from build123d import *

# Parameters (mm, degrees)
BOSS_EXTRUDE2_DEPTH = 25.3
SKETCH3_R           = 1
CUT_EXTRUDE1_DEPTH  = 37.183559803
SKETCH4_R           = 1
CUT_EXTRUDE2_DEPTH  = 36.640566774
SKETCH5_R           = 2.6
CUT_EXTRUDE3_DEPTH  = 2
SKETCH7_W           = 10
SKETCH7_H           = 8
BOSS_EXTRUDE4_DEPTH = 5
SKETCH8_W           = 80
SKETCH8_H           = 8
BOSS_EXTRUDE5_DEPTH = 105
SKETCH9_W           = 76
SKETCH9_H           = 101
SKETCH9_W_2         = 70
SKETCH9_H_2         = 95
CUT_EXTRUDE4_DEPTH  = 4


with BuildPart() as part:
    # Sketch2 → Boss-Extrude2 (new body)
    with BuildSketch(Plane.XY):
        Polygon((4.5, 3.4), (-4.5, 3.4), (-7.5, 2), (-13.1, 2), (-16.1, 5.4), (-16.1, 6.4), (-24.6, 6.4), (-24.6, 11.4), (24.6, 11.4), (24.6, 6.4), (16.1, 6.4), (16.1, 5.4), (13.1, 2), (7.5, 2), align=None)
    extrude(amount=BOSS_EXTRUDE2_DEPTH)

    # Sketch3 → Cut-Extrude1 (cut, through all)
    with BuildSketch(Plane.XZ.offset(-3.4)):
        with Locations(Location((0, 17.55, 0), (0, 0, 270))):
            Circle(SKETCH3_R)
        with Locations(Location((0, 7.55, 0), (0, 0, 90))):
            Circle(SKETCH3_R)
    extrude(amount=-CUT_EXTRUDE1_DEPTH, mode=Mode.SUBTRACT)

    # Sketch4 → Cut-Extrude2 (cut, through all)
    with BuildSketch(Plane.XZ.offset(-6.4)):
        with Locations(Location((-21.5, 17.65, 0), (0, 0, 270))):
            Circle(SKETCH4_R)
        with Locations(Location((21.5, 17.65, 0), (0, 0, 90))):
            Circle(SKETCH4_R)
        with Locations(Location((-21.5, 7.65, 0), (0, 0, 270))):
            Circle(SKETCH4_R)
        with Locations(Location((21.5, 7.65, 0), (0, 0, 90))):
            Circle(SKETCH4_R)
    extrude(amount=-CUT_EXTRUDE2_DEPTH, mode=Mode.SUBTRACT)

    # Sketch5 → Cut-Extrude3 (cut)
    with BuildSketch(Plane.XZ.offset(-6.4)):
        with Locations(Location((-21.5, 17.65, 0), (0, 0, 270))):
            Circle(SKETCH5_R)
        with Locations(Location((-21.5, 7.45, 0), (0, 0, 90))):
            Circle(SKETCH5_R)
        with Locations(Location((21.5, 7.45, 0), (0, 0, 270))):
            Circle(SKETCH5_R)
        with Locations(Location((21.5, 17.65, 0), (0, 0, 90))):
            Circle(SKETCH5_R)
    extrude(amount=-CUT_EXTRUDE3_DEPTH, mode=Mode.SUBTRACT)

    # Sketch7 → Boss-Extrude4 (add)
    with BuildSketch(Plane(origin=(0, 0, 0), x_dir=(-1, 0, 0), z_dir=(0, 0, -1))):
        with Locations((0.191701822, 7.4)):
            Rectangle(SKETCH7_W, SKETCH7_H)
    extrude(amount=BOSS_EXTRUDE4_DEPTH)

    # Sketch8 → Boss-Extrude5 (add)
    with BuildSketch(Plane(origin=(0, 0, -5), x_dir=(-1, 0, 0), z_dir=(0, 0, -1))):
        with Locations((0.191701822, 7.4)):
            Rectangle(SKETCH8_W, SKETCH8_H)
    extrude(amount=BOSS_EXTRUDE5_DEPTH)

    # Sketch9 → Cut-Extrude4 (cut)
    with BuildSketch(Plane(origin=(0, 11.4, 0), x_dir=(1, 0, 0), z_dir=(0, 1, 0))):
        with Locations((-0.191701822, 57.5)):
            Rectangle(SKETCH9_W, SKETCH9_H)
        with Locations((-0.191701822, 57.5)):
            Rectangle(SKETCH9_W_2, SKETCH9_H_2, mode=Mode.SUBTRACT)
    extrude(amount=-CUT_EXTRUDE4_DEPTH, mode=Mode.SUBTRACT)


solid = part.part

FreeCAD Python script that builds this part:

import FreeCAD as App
import Part
import Sketcher
from FreeCAD import Vector
Q = App.Units.Quantity

doc = App.newDocument("Part")
params = doc.addObject("Spreadsheet::Sheet", "Params")
for row, (alias, value) in enumerate([
    ("sketch1_width", "9 mm"),
    ("sketch1_height", "1 mm"),
    ("sketch1_height2", "5 mm"),
    ("sketch1_width2", "5.6 mm"),
    ("sketch1_width3", "8.5 mm"),
    ("pad1_length", "25.3 mm"),
    ("sketch2_diameter", "2 mm"),
    ("sketch3_diameter", "2 mm"),
    ("sketch4_diameter", "5.2 mm"),
    ("pocket3_length", "2 mm"),
    ("sketch5_width", "10 mm"),
    ("sketch5_height", "8 mm"),
    ("pad2_length", "5 mm"),
    ("sketch6_width", "80 mm"),
    ("sketch6_height", "8 mm"),
    ("pad3_length", "105 mm"),
    ("sketch7_width", "76 mm"),
    ("sketch7_width2", "70 mm"),
    ("sketch7_height", "101 mm"),
    ("sketch7_height2", "95 mm"),
    ("pocket4_length", "4 mm"),
], start=1):
    params.set(f"A{row}", alias)
    params.set(f"B{row}", "=" + value)
    params.setAlias(f"B{row}", alias)

body = doc.addObject("PartDesign::Body", "Body")

sketch1 = body.newObject("Sketcher::SketchObject", "Sketch")
sketch1.AttachmentSupport = (doc.getObject("XY_Plane"), [""])
sketch1.MapMode = "FlatFace"
sketch1.addGeometry(Part.LineSegment(Vector(-4.5, 3.4, 0), Vector(4.5, 3.4, 0)), False)
sketch1.addGeometry(Part.LineSegment(Vector(4.5, 3.4, 0), Vector(7.5, 2, 0)), False)
sketch1.addGeometry(Part.LineSegment(Vector(7.5, 2, 0), Vector(13.1, 2, 0)), False)
sketch1.addGeometry(Part.LineSegment(Vector(13.1, 2, 0), Vector(16.1, 5.4, 0)), False)
sketch1.addGeometry(Part.LineSegment(Vector(16.1, 5.4, 0), Vector(16.1, 6.4, 0)), False)
sketch1.addGeometry(Part.LineSegment(Vector(16.1, 6.4, 0), Vector(24.6, 6.4, 0)), False)
sketch1.addGeometry(Part.LineSegment(Vector(24.6, 6.4, 0), Vector(24.6, 11.4, 0)), False)
sketch1.addGeometry(Part.LineSegment(Vector(24.6, 11.4, 0), Vector(-24.6, 11.4, 0)), False)
sketch1.addGeometry(Part.LineSegment(Vector(-24.6, 11.4, 0), Vector(-24.6, 6.4, 0)), False)
sketch1.addGeometry(Part.LineSegment(Vector(-24.6, 6.4, 0), Vector(-16.1, 6.4, 0)), False)
sketch1.addGeometry(Part.LineSegment(Vector(-16.1, 6.4, 0), Vector(-16.1, 5.4, 0)), False)
sketch1.addGeometry(Part.LineSegment(Vector(-16.1, 5.4, 0), Vector(-13.1, 2, 0)), False)
sketch1.addGeometry(Part.LineSegment(Vector(-13.1, 2, 0), Vector(-7.5, 2, 0)), False)
sketch1.addGeometry(Part.LineSegment(Vector(-7.5, 2, 0), Vector(-4.5, 3.4, 0)), False)
sketch1.addConstraint(Sketcher.Constraint("Coincident", 0, 2, 1, 1))
sketch1.addConstraint(Sketcher.Constraint("Coincident", 1, 2, 2, 1))
sketch1.addConstraint(Sketcher.Constraint("Coincident", 2, 2, 3, 1))
sketch1.addConstraint(Sketcher.Constraint("Coincident", 3, 2, 4, 1))
sketch1.addConstraint(Sketcher.Constraint("Coincident", 4, 2, 5, 1))
sketch1.addConstraint(Sketcher.Constraint("Coincident", 5, 2, 6, 1))
sketch1.addConstraint(Sketcher.Constraint("Coincident", 6, 2, 7, 1))
sketch1.addConstraint(Sketcher.Constraint("Coincident", 7, 2, 8, 1))
sketch1.addConstraint(Sketcher.Constraint("Coincident", 8, 2, 9, 1))
sketch1.addConstraint(Sketcher.Constraint("Coincident", 9, 2, 10, 1))
sketch1.addConstraint(Sketcher.Constraint("Coincident", 10, 2, 11, 1))
sketch1.addConstraint(Sketcher.Constraint("Coincident", 11, 2, 12, 1))
sketch1.addConstraint(Sketcher.Constraint("Coincident", 12, 2, 13, 1))
sketch1.addConstraint(Sketcher.Constraint("Coincident", 13, 2, 0, 1))
sketch1.addConstraint(Sketcher.Constraint("Horizontal", 0))
sketch1.addConstraint(Sketcher.Constraint("Horizontal", 2))
sketch1.addConstraint(Sketcher.Constraint("Vertical", 4))
sketch1.addConstraint(Sketcher.Constraint("Horizontal", 5))
sketch1.addConstraint(Sketcher.Constraint("Vertical", 6))
sketch1.addConstraint(Sketcher.Constraint("Horizontal", 7))
sketch1.addConstraint(Sketcher.Constraint("Vertical", 8))
sketch1.addConstraint(Sketcher.Constraint("Horizontal", 9))
sketch1.addConstraint(Sketcher.Constraint("Vertical", 10))
sketch1.addConstraint(Sketcher.Constraint("Horizontal", 12))
sketch1.addConstraint(Sketcher.Constraint("Symmetric", 5, 2, 8, 2, -2))
sketch1.addConstraint(Sketcher.Constraint("Symmetric", 3, 2, 10, 2, -2))
sketch1.addConstraint(Sketcher.Constraint("Symmetric", 2, 2, 11, 2, -2))
sketch1.addConstraint(Sketcher.Constraint("Equal", 2, 12))
sketch1.addConstraint(Sketcher.Constraint("Equal", 1, 13))
sketch1.addConstraint(Sketcher.Constraint("DistanceX", 0, 1, 0, 2, Q("9 mm")))
sketch1.addConstraint(Sketcher.Constraint("DistanceY", 4, 1, 4, 2, Q("1 mm")))
sketch1.addConstraint(Sketcher.Constraint("DistanceY", 6, 1, 6, 2, Q("5 mm")))
sketch1.addConstraint(Sketcher.Constraint("DistanceX", 2, 1, 2, 2, Q("5.6 mm")))
sketch1.addConstraint(Sketcher.Constraint("DistanceX", 5, 1, 5, 2, Q("8.5 mm")))
sketch1.addConstraint(Sketcher.Constraint("DistanceX", 7, 2, 7, 1, Q("49.2 mm")))
sketch1.addConstraint(Sketcher.Constraint("DistanceY", -1, 1, 1, 2, Q("2 mm")))
sketch1.addConstraint(Sketcher.Constraint("DistanceX", 0, 2, 1, 2, Q("3 mm")))
sketch1.addConstraint(Sketcher.Constraint("DistanceY", 0, 2, 3, 2, Q("2 mm")))
sketch1.addConstraint(Sketcher.Constraint("DistanceY", -1, 1, 0, 2, Q("3.4 mm")))
sketch1.setExpression("Constraints[29]", "Params.sketch1_width")
sketch1.setExpression("Constraints[30]", "Params.sketch1_height")
sketch1.setExpression("Constraints[31]", "Params.sketch1_height2")
sketch1.setExpression("Constraints[32]", "Params.sketch1_width2")
sketch1.setExpression("Constraints[33]", "Params.sketch1_width3")
pad1 = body.newObject("PartDesign::Pad", "Pad")
pad1.Profile = sketch1
pad1.setExpression("Length", "Params.pad1_length")

sketch2 = body.newObject("Sketcher::SketchObject", "Sketch001")
sketch2.AttachmentSupport = (doc.getObject("XZ_Plane"), [""])
sketch2.MapMode = "FlatFace"
sketch2.AttachmentOffset = App.Placement(Vector(0, 0, -3.4), App.Rotation())
sketch2.addGeometry(Part.Circle(Vector(0, 17.6, 0), Vector(0, 0, 1), 1), False)
sketch2.addGeometry(Part.Circle(Vector(0, 7.5, 0), Vector(0, 0, 1), 1), False)
sketch2.addConstraint(Sketcher.Constraint("Equal", 0, 1))
sketch2.addConstraint(Sketcher.Constraint("PointOnObject", 0, 3, -2))
sketch2.addConstraint(Sketcher.Constraint("PointOnObject", 1, 3, -2))
sketch2.addConstraint(Sketcher.Constraint("Diameter", 0, Q("2 mm")))
sketch2.addConstraint(Sketcher.Constraint("DistanceY", 1, 3, 0, 3, Q("10 mm")))
sketch2.addConstraint(Sketcher.Constraint("DistanceY", -1, 1, 0, 3, Q("17.55 mm")))
sketch2.setExpression("Constraints[3]", "Params.sketch2_diameter")
pocket1 = body.newObject("PartDesign::Pocket", "Pocket")
pocket1.Profile = sketch2
pocket1.Type = "ThroughAll"

sketch3 = body.newObject("Sketcher::SketchObject", "Sketch002")
sketch3.AttachmentSupport = (doc.getObject("XZ_Plane"), [""])
sketch3.MapMode = "FlatFace"
sketch3.AttachmentOffset = App.Placement(Vector(0, 0, -6.4), App.Rotation())
sketch3.addGeometry(Part.Circle(Vector(-21.5, 17.6, 0), Vector(0, 0, 1), 1), False)
sketch3.addGeometry(Part.Circle(Vector(21.5, 17.6, 0), Vector(0, 0, 1), 1), False)
sketch3.addGeometry(Part.Circle(Vector(-21.5, 7.7, 0), Vector(0, 0, 1), 1), False)
sketch3.addGeometry(Part.Circle(Vector(21.5, 7.7, 0), Vector(0, 0, 1), 1), False)
sketch3.addConstraint(Sketcher.Constraint("Equal", 0, 1))
sketch3.addConstraint(Sketcher.Constraint("Equal", 1, 2))
sketch3.addConstraint(Sketcher.Constraint("Equal", 2, 3))
sketch3.addConstraint(Sketcher.Constraint("Symmetric", 0, 3, 1, 3, -2))
sketch3.addConstraint(Sketcher.Constraint("Symmetric", 2, 3, 3, 3, -2))
sketch3.addConstraint(Sketcher.Constraint("Vertical", 0, 3, 2, 3))
sketch3.addConstraint(Sketcher.Constraint("Diameter", 0, Q("2 mm")))
sketch3.addConstraint(Sketcher.Constraint("DistanceX", 0, 3, 1, 3, Q("43 mm")))
sketch3.addConstraint(Sketcher.Constraint("DistanceY", 2, 3, 0, 3, Q("10 mm")))
sketch3.addConstraint(Sketcher.Constraint("DistanceY", -1, 1, 0, 3, Q("17.65 mm")))
sketch3.setExpression("Constraints[6]", "Params.sketch3_diameter")
pocket2 = body.newObject("PartDesign::Pocket", "Pocket001")
pocket2.Profile = sketch3
pocket2.Type = "ThroughAll"

sketch4 = body.newObject("Sketcher::SketchObject", "Sketch003")
sketch4.AttachmentSupport = (doc.getObject("XZ_Plane"), [""])
sketch4.MapMode = "FlatFace"
sketch4.AttachmentOffset = App.Placement(Vector(0, 0, -6.4), App.Rotation())
sketch4.addGeometry(Part.Circle(Vector(-21.5, 17.6, 0), Vector(0, 0, 1), 2.6), False)
sketch4.addGeometry(Part.Circle(Vector(-21.5, 7.5, 0), Vector(0, 0, 1), 2.6), False)
sketch4.addGeometry(Part.Circle(Vector(21.5, 7.5, 0), Vector(0, 0, 1), 2.6), False)
sketch4.addGeometry(Part.Circle(Vector(21.5, 17.6, 0), Vector(0, 0, 1), 2.6), False)
sketch4.addConstraint(Sketcher.Constraint("Equal", 0, 1))
sketch4.addConstraint(Sketcher.Constraint("Equal", 1, 2))
sketch4.addConstraint(Sketcher.Constraint("Equal", 2, 3))
sketch4.addConstraint(Sketcher.Constraint("Symmetric", 1, 3, 2, 3, -2))
sketch4.addConstraint(Sketcher.Constraint("Symmetric", 0, 3, 3, 3, -2))
sketch4.addConstraint(Sketcher.Constraint("Vertical", 0, 3, 1, 3))
sketch4.addConstraint(Sketcher.Constraint("Diameter", 0, Q("5.2 mm")))
sketch4.addConstraint(Sketcher.Constraint("DistanceX", 1, 3, 2, 3, Q("43 mm")))
sketch4.addConstraint(Sketcher.Constraint("DistanceY", 1, 3, 0, 3, Q("10.2 mm")))
sketch4.addConstraint(Sketcher.Constraint("DistanceY", -1, 1, 0, 3, Q("17.65 mm")))
sketch4.setExpression("Constraints[6]", "Params.sketch4_diameter")
pocket3 = body.newObject("PartDesign::Pocket", "Pocket002")
pocket3.Profile = sketch4
pocket3.setExpression("Length", "Params.pocket3_length")

sketch5 = body.newObject("Sketcher::SketchObject", "Sketch004")
sketch5.AttachmentSupport = (doc.getObject("XY_Plane"), [""])
sketch5.MapMode = "FlatFace"
sketch5.addGeometry(Part.LineSegment(Vector(5, 11, 0), Vector(5, 3, 0)), False)
sketch5.addGeometry(Part.LineSegment(Vector(5, 3, 0), Vector(-5, 3, 0)), False)
sketch5.addGeometry(Part.LineSegment(Vector(-5, 3, 0), Vector(-5, 11, 0)), False)
sketch5.addGeometry(Part.LineSegment(Vector(-5, 11, 0), Vector(5, 11, 0)), False)
sketch5.addConstraint(Sketcher.Constraint("Coincident", 0, 2, 1, 1))
sketch5.addConstraint(Sketcher.Constraint("Coincident", 1, 2, 2, 1))
sketch5.addConstraint(Sketcher.Constraint("Coincident", 2, 2, 3, 1))
sketch5.addConstraint(Sketcher.Constraint("Coincident", 3, 2, 0, 1))
sketch5.addConstraint(Sketcher.Constraint("Vertical", 0))
sketch5.addConstraint(Sketcher.Constraint("Horizontal", 1))
sketch5.addConstraint(Sketcher.Constraint("Vertical", 2))
sketch5.addConstraint(Sketcher.Constraint("Horizontal", 3))
sketch5.addConstraint(Sketcher.Constraint("DistanceX", 1, 2, 1, 1, Q("10 mm")))
sketch5.addConstraint(Sketcher.Constraint("DistanceY", 0, 2, 0, 1, Q("8 mm")))
sketch5.addConstraint(Sketcher.Constraint("DistanceY", -1, 1, 0, 2, Q("3.4 mm")))
sketch5.addConstraint(Sketcher.Constraint("DistanceX", -1, 1, 0, 2, Q("4.808298 mm")))
sketch5.setExpression("Constraints[8]", "Params.sketch5_width")
sketch5.setExpression("Constraints[9]", "Params.sketch5_height")
pad2 = body.newObject("PartDesign::Pad", "Pad001")
pad2.Profile = sketch5
pad2.setExpression("Length", "Params.pad2_length")
pad2.Reversed = True

sketch6 = body.newObject("Sketcher::SketchObject", "Sketch005")
sketch6.AttachmentSupport = (doc.getObject("XY_Plane"), [""])
sketch6.MapMode = "FlatFace"
sketch6.AttachmentOffset = App.Placement(Vector(0, 0, -5), App.Rotation())
sketch6.addGeometry(Part.LineSegment(Vector(40, 11, 0), Vector(40, 3, 0)), False)
sketch6.addGeometry(Part.LineSegment(Vector(40, 3, 0), Vector(-40, 3, 0)), False)
sketch6.addGeometry(Part.LineSegment(Vector(-40, 3, 0), Vector(-40, 11, 0)), False)
sketch6.addGeometry(Part.LineSegment(Vector(-40, 11, 0), Vector(40, 11, 0)), False)
sketch6.addConstraint(Sketcher.Constraint("Coincident", 0, 2, 1, 1))
sketch6.addConstraint(Sketcher.Constraint("Coincident", 1, 2, 2, 1))
sketch6.addConstraint(Sketcher.Constraint("Coincident", 2, 2, 3, 1))
sketch6.addConstraint(Sketcher.Constraint("Coincident", 3, 2, 0, 1))
sketch6.addConstraint(Sketcher.Constraint("Vertical", 0))
sketch6.addConstraint(Sketcher.Constraint("Horizontal", 1))
sketch6.addConstraint(Sketcher.Constraint("Vertical", 2))
sketch6.addConstraint(Sketcher.Constraint("Horizontal", 3))
sketch6.addConstraint(Sketcher.Constraint("DistanceX", 1, 2, 1, 1, Q("80 mm")))
sketch6.addConstraint(Sketcher.Constraint("DistanceY", 0, 2, 0, 1, Q("8 mm")))
sketch6.addConstraint(Sketcher.Constraint("DistanceY", -1, 1, 0, 2, Q("3.4 mm")))
sketch6.addConstraint(Sketcher.Constraint("DistanceX", -1, 1, 0, 2, Q("39.808298 mm")))
sketch6.setExpression("Constraints[8]", "Params.sketch6_width")
sketch6.setExpression("Constraints[9]", "Params.sketch6_height")
pad3 = body.newObject("PartDesign::Pad", "Pad002")
pad3.Profile = sketch6
pad3.setExpression("Length", "Params.pad3_length")
pad3.Reversed = True

sketch7 = body.newObject("Sketcher::SketchObject", "Sketch006")
sketch7.AttachmentSupport = (doc.getObject("XZ_Plane"), [""])
sketch7.MapMode = "FlatFace"
sketch7.AttachmentOffset = App.Placement(Vector(0, 0, -11.4), App.Rotation())
sketch7.addGeometry(Part.LineSegment(Vector(-38, -108, 0), Vector(-38, -7, 0)), False)
sketch7.addGeometry(Part.LineSegment(Vector(-38, -7, 0), Vector(38, -7, 0)), False)
sketch7.addGeometry(Part.LineSegment(Vector(38, -7, 0), Vector(38, -108, 0)), False)
sketch7.addGeometry(Part.LineSegment(Vector(38, -108, 0), Vector(-38, -108, 0)), False)
sketch7.addGeometry(Part.LineSegment(Vector(35, -10, 0), Vector(-35, -10, 0)), False)
sketch7.addGeometry(Part.LineSegment(Vector(-35, -10, 0), Vector(-35, -105, 0)), False)
sketch7.addGeometry(Part.LineSegment(Vector(-35, -105, 0), Vector(35, -105, 0)), False)
sketch7.addGeometry(Part.LineSegment(Vector(35, -105, 0), Vector(35, -10, 0)), False)
sketch7.addConstraint(Sketcher.Constraint("Coincident", 0, 2, 1, 1))
sketch7.addConstraint(Sketcher.Constraint("Coincident", 1, 2, 2, 1))
sketch7.addConstraint(Sketcher.Constraint("Coincident", 2, 2, 3, 1))
sketch7.addConstraint(Sketcher.Constraint("Coincident", 3, 2, 0, 1))
sketch7.addConstraint(Sketcher.Constraint("Coincident", 4, 2, 5, 1))
sketch7.addConstraint(Sketcher.Constraint("Coincident", 5, 2, 6, 1))
sketch7.addConstraint(Sketcher.Constraint("Coincident", 6, 2, 7, 1))
sketch7.addConstraint(Sketcher.Constraint("Coincident", 7, 2, 4, 1))
sketch7.addConstraint(Sketcher.Constraint("Vertical", 0))
sketch7.addConstraint(Sketcher.Constraint("Horizontal", 1))
sketch7.addConstraint(Sketcher.Constraint("Vertical", 2))
sketch7.addConstraint(Sketcher.Constraint("Horizontal", 3))
sketch7.addConstraint(Sketcher.Constraint("Horizontal", 4))
sketch7.addConstraint(Sketcher.Constraint("Vertical", 5))
sketch7.addConstraint(Sketcher.Constraint("Horizontal", 6))
sketch7.addConstraint(Sketcher.Constraint("Vertical", 7))
sketch7.addConstraint(Sketcher.Constraint("DistanceX", 1, 1, 1, 2, Q("76 mm")))
sketch7.addConstraint(Sketcher.Constraint("DistanceX", 4, 2, 4, 1, Q("70 mm")))
sketch7.addConstraint(Sketcher.Constraint("DistanceY", 0, 1, 0, 2, Q("101 mm")))
sketch7.addConstraint(Sketcher.Constraint("DistanceY", 5, 2, 5, 1, Q("95 mm")))
sketch7.addConstraint(Sketcher.Constraint("DistanceY", 0, 2, -1, 1, Q("7 mm")))
sketch7.addConstraint(Sketcher.Constraint("DistanceY", 4, 2, -1, 1, Q("10 mm")))
sketch7.addConstraint(Sketcher.Constraint("DistanceX", 0, 2, 4, 2, Q("3 mm")))
sketch7.addConstraint(Sketcher.Constraint("DistanceX", 0, 2, -1, 1, Q("38.191702 mm")))
sketch7.setExpression("Constraints[16]", "Params.sketch7_width")
sketch7.setExpression("Constraints[17]", "Params.sketch7_width2")
sketch7.setExpression("Constraints[18]", "Params.sketch7_height")
sketch7.setExpression("Constraints[19]", "Params.sketch7_height2")
pocket4 = body.newObject("PartDesign::Pocket", "Pocket003")
pocket4.Profile = sketch7
pocket4.setExpression("Length", "Params.pocket4_length")
pocket4.Reversed = True

doc.recompute()
